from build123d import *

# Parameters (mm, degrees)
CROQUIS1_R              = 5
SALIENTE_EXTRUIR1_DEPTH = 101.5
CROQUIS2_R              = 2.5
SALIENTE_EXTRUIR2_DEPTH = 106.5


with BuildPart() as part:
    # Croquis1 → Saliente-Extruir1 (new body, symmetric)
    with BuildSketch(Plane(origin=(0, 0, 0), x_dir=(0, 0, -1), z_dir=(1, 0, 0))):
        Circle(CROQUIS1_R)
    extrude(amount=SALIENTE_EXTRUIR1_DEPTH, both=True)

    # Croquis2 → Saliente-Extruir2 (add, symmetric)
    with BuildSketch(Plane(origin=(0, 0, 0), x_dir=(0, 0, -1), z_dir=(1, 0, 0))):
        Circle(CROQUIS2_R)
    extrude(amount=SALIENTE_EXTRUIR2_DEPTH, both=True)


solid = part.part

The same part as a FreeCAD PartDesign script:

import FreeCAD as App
import Part
import Sketcher
Q = App.Units.Quantity

doc = App.newDocument("Part")
body = doc.addObject("PartDesign::Body", "Body")

sketch1 = body.newObject("Sketcher::SketchObject", "Sketch")
sketch1.AttachmentSupport = (doc.getObject("YZ_Plane"), [""])
sketch1.MapMode = "FlatFace"
sketch1.addGeometry(Part.Circle(App.Vector(0, 0, 0), App.Vector(0, 0, 1), 5), False)
sketch1.addConstraint([
    Sketcher.Constraint("Coincident", 0, 3, -1, 1),
    Sketcher.Constraint("Diameter", 0, Q("10 mm")),
])
pad1 = body.newObject("PartDesign::Pad", "Pad")
pad1.Profile = sketch1
pad1.Length = 203
pad1.Midplane = True

sketch2 = body.newObject("Sketcher::SketchObject", "Sketch001")
sketch2.AttachmentSupport = (doc.getObject("YZ_Plane"), [""])
sketch2.MapMode = "FlatFace"
sketch2.addGeometry(Part.Circle(App.Vector(0, 0, 0), App.Vector(0, 0, 1), 2.5), False)
sketch2.addConstraint([
    Sketcher.Constraint("Coincident", 0, 3, -1, 1),
    Sketcher.Constraint("Diameter", 0, Q("5 mm")),
])
pad2 = body.newObject("PartDesign::Pad", "Pad001")
pad2.Profile = sketch2
pad2.Length = 213
pad2.Midplane = True

doc.recompute()
